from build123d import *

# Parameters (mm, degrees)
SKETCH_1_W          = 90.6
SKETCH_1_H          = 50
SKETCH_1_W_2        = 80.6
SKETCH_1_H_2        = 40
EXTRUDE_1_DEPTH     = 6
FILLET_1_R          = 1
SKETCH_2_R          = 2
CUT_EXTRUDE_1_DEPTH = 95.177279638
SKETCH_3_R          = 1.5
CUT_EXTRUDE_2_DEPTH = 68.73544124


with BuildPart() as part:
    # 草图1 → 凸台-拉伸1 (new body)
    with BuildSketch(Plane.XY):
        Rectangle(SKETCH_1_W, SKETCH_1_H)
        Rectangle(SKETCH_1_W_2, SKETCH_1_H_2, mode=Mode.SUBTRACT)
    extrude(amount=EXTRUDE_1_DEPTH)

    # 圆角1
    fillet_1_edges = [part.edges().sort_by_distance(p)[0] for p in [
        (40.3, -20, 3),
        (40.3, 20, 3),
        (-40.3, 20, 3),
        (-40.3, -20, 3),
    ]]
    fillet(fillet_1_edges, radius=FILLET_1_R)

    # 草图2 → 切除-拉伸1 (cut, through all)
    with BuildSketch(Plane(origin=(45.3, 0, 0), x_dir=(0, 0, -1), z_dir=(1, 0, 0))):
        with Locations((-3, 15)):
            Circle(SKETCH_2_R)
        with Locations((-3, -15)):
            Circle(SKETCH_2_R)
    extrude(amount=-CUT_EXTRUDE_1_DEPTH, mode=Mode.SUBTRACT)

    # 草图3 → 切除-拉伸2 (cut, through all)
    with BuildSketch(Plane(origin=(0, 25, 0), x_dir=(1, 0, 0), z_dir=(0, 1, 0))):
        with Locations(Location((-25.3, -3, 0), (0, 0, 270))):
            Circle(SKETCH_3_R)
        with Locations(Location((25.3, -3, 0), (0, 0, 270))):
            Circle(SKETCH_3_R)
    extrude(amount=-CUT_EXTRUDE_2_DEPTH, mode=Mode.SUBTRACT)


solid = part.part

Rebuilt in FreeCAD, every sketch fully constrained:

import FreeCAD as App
import Part
import Sketcher
from FreeCAD import Vector
Q = App.Units.Quantity


def edges_at(feature, points):
    """Names of the edges that pass closest to the given points."""
    edges = feature.Shape.Edges
    near = lambda p: min(range(len(edges)), key=lambda i: edges[i].distToShape(Part.Vertex(*p))[0])
    return sorted({f"Edge{near(p) + 1}" for p in points})


def add_polygon(sketch, points):
    """Adds a closed chain of lines whose ends are joined by coincident constraints."""
    first, n = sketch.GeometryCount, len(points)
    for a, b in zip(points, points[1:] + points[:1]):
        sketch.addGeometry(Part.LineSegment(App.Vector(*a, 0), App.Vector(*b, 0)), False)
    for i in range(n):
        sketch.addConstraint(Sketcher.Constraint("Coincident", first + i, 2, first + (i + 1) % n, 1))

doc = App.newDocument("Part")
params = doc.addObject("Spreadsheet::Sheet", "Params")
for row, (alias, value) in enumerate([
    ("sketch1_height", "50 mm"),
    ("sketch1_height2", "40 mm"),
    ("sketch1_width", "90.6 mm"),
    ("sketch1_width2", "80.6 mm"),
    ("pad1_length", "6 mm"),
    ("fillet_radius", "1 mm"),
    ("sketch2_diameter", "4 mm"),
    ("sketch3_diameter", "3 mm"),
], start=1):
    params.set(f"A{row}", alias)
    params.set(f"B{row}", "=" + value)
    params.setAlias(f"B{row}", alias)

body = doc.addObject("PartDesign::Body", "Body")

sketch1 = body.newObject("Sketcher::SketchObject", "Sketch")
sketch1.AttachmentSupport = (doc.getObject("XY_Plane"), [""])
sketch1.MapMode = "FlatFace"
add_polygon(sketch1, [(-45, 25), (-45, -25), (45, -25), (45, 25)])
add_polygon(sketch1, [(40, -20), (-40, -20), (-40, 20), (40, 20)])
sketch1.addConstraint([
    Sketcher.Constraint("Vertical", 0),
    Sketcher.Constraint("Horizontal", 1),
    Sketcher.Constraint("Vertical", 2),
    Sketcher.Constraint("Horizontal", 3),
    Sketcher.Constraint("Horizontal", 4),
    Sketcher.Constraint("Vertical", 5),
    Sketcher.Constraint("Horizontal", 6),
    Sketcher.Constraint("Vertical", 7),
    Sketcher.Constraint("Symmetric", 0, 2, 2, 2, -1, 1),
    Sketcher.Constraint("Symmetric", 4, 2, 6, 2, -1, 1),
    Sketcher.Constraint("DistanceY", 0, 2, 0, 1, Q("50 mm")),
    Sketcher.Constraint("DistanceY", 5, 1, 5, 2, Q("40 mm")),
    Sketcher.Constraint("DistanceX", 1, 1, 1, 2, Q("90.6 mm")),
    Sketcher.Constraint("DistanceX", 4, 2, 4, 1, Q("80.6 mm")),
])
sketch1.setExpression("Constraints[18]", "Params.sketch1_height")
sketch1.setExpression("Constraints[19]", "Params.sketch1_height2")
sketch1.setExpression("Constraints[20]", "Params.sketch1_width")
sketch1.setExpression("Constraints[21]", "Params.sketch1_width2")
pad1 = body.newObject("PartDesign::Pad", "Pad")
pad1.Profile = sketch1
pad1.setExpression("Length", "Params.pad1_length")
doc.recompute()

fillet = body.newObject("PartDesign::Fillet", "Fillet")
fillet.Base = (pad1, edges_at(pad1, [
    (40.3, -20, 3),
    (40.3, 20, 3),
    (-40.3, 20, 3),
    (-40.3, -20, 3),
]))
fillet.setExpression("Radius", "Params.fillet_radius")

sketch2 = body.newObject("Sketcher::SketchObject", "Sketch001")
sketch2.AttachmentSupport = (doc.getObject("YZ_Plane"), [""])
sketch2.MapMode = "FlatFace"
sketch2.AttachmentOffset = App.Placement(Vector(0, 0, 45.3), App.Rotation())
sketch2.addGeometry([
    Part.Circle(Vector(15, 3, 0), Vector(0, 0, 1), 2),
    Part.Circle(Vector(-15, 3, 0), Vector(0, 0, 1), 2),
], False)
sketch2.addConstraint([
    Sketcher.Constraint("Equal", 0, 1),
    Sketcher.Constraint("Symmetric", 0, 3, 1, 3, -2),
    Sketcher.Constraint("Diameter", 0, Q("4 mm")),
    Sketcher.Constraint("DistanceX", -1, 1, 0, 3, Q("15 mm")),
    Sketcher.Constraint("DistanceY", -1, 1, 0, 3, Q("3 mm")),
])
sketch2.setExpression("Constraints[2]", "Params.sketch2_diameter")
pocket1 = body.newObject("PartDesign::Pocket", "Pocket")
pocket1.Profile = sketch2
pocket1.Type = "ThroughAll"

sketch3 = body.newObject("Sketcher::SketchObject", "Sketch002")
sketch3.AttachmentSupport = (doc.getObject("XZ_Plane"), [""])
sketch3.MapMode = "FlatFace"
sketch3.AttachmentOffset = App.Placement(Vector(0, 0, -25), App.Rotation())
sketch3.addGeometry([
    Part.Circle(Vector(-25.3, 3, 0), Vector(0, 0, 1), 1.5),
    Part.Circle(Vector(25.3, 3, 0), Vector(0, 0, 1), 1.5),
], False)
sketch3.addConstraint([
    Sketcher.Constraint("Equal", 0, 1),
    Sketcher.Constraint("Symmetric", 0, 3, 1, 3, -2),
    Sketcher.Constraint("Diameter", 0, Q("3 mm")),
    Sketcher.Constraint("DistanceY", -1, 1, 0, 3, Q("3 mm")),
    Sketcher.Constraint("DistanceX", 0, 3, -1, 1, Q("25.3 mm")),
])
sketch3.setExpression("Constraints[2]", "Params.sketch3_diameter")
pocket2 = body.newObject("PartDesign::Pocket", "Pocket001")
pocket2.Profile = sketch3
pocket2.Type = "ThroughAll"
pocket2.Reversed = True

doc.recompute()
